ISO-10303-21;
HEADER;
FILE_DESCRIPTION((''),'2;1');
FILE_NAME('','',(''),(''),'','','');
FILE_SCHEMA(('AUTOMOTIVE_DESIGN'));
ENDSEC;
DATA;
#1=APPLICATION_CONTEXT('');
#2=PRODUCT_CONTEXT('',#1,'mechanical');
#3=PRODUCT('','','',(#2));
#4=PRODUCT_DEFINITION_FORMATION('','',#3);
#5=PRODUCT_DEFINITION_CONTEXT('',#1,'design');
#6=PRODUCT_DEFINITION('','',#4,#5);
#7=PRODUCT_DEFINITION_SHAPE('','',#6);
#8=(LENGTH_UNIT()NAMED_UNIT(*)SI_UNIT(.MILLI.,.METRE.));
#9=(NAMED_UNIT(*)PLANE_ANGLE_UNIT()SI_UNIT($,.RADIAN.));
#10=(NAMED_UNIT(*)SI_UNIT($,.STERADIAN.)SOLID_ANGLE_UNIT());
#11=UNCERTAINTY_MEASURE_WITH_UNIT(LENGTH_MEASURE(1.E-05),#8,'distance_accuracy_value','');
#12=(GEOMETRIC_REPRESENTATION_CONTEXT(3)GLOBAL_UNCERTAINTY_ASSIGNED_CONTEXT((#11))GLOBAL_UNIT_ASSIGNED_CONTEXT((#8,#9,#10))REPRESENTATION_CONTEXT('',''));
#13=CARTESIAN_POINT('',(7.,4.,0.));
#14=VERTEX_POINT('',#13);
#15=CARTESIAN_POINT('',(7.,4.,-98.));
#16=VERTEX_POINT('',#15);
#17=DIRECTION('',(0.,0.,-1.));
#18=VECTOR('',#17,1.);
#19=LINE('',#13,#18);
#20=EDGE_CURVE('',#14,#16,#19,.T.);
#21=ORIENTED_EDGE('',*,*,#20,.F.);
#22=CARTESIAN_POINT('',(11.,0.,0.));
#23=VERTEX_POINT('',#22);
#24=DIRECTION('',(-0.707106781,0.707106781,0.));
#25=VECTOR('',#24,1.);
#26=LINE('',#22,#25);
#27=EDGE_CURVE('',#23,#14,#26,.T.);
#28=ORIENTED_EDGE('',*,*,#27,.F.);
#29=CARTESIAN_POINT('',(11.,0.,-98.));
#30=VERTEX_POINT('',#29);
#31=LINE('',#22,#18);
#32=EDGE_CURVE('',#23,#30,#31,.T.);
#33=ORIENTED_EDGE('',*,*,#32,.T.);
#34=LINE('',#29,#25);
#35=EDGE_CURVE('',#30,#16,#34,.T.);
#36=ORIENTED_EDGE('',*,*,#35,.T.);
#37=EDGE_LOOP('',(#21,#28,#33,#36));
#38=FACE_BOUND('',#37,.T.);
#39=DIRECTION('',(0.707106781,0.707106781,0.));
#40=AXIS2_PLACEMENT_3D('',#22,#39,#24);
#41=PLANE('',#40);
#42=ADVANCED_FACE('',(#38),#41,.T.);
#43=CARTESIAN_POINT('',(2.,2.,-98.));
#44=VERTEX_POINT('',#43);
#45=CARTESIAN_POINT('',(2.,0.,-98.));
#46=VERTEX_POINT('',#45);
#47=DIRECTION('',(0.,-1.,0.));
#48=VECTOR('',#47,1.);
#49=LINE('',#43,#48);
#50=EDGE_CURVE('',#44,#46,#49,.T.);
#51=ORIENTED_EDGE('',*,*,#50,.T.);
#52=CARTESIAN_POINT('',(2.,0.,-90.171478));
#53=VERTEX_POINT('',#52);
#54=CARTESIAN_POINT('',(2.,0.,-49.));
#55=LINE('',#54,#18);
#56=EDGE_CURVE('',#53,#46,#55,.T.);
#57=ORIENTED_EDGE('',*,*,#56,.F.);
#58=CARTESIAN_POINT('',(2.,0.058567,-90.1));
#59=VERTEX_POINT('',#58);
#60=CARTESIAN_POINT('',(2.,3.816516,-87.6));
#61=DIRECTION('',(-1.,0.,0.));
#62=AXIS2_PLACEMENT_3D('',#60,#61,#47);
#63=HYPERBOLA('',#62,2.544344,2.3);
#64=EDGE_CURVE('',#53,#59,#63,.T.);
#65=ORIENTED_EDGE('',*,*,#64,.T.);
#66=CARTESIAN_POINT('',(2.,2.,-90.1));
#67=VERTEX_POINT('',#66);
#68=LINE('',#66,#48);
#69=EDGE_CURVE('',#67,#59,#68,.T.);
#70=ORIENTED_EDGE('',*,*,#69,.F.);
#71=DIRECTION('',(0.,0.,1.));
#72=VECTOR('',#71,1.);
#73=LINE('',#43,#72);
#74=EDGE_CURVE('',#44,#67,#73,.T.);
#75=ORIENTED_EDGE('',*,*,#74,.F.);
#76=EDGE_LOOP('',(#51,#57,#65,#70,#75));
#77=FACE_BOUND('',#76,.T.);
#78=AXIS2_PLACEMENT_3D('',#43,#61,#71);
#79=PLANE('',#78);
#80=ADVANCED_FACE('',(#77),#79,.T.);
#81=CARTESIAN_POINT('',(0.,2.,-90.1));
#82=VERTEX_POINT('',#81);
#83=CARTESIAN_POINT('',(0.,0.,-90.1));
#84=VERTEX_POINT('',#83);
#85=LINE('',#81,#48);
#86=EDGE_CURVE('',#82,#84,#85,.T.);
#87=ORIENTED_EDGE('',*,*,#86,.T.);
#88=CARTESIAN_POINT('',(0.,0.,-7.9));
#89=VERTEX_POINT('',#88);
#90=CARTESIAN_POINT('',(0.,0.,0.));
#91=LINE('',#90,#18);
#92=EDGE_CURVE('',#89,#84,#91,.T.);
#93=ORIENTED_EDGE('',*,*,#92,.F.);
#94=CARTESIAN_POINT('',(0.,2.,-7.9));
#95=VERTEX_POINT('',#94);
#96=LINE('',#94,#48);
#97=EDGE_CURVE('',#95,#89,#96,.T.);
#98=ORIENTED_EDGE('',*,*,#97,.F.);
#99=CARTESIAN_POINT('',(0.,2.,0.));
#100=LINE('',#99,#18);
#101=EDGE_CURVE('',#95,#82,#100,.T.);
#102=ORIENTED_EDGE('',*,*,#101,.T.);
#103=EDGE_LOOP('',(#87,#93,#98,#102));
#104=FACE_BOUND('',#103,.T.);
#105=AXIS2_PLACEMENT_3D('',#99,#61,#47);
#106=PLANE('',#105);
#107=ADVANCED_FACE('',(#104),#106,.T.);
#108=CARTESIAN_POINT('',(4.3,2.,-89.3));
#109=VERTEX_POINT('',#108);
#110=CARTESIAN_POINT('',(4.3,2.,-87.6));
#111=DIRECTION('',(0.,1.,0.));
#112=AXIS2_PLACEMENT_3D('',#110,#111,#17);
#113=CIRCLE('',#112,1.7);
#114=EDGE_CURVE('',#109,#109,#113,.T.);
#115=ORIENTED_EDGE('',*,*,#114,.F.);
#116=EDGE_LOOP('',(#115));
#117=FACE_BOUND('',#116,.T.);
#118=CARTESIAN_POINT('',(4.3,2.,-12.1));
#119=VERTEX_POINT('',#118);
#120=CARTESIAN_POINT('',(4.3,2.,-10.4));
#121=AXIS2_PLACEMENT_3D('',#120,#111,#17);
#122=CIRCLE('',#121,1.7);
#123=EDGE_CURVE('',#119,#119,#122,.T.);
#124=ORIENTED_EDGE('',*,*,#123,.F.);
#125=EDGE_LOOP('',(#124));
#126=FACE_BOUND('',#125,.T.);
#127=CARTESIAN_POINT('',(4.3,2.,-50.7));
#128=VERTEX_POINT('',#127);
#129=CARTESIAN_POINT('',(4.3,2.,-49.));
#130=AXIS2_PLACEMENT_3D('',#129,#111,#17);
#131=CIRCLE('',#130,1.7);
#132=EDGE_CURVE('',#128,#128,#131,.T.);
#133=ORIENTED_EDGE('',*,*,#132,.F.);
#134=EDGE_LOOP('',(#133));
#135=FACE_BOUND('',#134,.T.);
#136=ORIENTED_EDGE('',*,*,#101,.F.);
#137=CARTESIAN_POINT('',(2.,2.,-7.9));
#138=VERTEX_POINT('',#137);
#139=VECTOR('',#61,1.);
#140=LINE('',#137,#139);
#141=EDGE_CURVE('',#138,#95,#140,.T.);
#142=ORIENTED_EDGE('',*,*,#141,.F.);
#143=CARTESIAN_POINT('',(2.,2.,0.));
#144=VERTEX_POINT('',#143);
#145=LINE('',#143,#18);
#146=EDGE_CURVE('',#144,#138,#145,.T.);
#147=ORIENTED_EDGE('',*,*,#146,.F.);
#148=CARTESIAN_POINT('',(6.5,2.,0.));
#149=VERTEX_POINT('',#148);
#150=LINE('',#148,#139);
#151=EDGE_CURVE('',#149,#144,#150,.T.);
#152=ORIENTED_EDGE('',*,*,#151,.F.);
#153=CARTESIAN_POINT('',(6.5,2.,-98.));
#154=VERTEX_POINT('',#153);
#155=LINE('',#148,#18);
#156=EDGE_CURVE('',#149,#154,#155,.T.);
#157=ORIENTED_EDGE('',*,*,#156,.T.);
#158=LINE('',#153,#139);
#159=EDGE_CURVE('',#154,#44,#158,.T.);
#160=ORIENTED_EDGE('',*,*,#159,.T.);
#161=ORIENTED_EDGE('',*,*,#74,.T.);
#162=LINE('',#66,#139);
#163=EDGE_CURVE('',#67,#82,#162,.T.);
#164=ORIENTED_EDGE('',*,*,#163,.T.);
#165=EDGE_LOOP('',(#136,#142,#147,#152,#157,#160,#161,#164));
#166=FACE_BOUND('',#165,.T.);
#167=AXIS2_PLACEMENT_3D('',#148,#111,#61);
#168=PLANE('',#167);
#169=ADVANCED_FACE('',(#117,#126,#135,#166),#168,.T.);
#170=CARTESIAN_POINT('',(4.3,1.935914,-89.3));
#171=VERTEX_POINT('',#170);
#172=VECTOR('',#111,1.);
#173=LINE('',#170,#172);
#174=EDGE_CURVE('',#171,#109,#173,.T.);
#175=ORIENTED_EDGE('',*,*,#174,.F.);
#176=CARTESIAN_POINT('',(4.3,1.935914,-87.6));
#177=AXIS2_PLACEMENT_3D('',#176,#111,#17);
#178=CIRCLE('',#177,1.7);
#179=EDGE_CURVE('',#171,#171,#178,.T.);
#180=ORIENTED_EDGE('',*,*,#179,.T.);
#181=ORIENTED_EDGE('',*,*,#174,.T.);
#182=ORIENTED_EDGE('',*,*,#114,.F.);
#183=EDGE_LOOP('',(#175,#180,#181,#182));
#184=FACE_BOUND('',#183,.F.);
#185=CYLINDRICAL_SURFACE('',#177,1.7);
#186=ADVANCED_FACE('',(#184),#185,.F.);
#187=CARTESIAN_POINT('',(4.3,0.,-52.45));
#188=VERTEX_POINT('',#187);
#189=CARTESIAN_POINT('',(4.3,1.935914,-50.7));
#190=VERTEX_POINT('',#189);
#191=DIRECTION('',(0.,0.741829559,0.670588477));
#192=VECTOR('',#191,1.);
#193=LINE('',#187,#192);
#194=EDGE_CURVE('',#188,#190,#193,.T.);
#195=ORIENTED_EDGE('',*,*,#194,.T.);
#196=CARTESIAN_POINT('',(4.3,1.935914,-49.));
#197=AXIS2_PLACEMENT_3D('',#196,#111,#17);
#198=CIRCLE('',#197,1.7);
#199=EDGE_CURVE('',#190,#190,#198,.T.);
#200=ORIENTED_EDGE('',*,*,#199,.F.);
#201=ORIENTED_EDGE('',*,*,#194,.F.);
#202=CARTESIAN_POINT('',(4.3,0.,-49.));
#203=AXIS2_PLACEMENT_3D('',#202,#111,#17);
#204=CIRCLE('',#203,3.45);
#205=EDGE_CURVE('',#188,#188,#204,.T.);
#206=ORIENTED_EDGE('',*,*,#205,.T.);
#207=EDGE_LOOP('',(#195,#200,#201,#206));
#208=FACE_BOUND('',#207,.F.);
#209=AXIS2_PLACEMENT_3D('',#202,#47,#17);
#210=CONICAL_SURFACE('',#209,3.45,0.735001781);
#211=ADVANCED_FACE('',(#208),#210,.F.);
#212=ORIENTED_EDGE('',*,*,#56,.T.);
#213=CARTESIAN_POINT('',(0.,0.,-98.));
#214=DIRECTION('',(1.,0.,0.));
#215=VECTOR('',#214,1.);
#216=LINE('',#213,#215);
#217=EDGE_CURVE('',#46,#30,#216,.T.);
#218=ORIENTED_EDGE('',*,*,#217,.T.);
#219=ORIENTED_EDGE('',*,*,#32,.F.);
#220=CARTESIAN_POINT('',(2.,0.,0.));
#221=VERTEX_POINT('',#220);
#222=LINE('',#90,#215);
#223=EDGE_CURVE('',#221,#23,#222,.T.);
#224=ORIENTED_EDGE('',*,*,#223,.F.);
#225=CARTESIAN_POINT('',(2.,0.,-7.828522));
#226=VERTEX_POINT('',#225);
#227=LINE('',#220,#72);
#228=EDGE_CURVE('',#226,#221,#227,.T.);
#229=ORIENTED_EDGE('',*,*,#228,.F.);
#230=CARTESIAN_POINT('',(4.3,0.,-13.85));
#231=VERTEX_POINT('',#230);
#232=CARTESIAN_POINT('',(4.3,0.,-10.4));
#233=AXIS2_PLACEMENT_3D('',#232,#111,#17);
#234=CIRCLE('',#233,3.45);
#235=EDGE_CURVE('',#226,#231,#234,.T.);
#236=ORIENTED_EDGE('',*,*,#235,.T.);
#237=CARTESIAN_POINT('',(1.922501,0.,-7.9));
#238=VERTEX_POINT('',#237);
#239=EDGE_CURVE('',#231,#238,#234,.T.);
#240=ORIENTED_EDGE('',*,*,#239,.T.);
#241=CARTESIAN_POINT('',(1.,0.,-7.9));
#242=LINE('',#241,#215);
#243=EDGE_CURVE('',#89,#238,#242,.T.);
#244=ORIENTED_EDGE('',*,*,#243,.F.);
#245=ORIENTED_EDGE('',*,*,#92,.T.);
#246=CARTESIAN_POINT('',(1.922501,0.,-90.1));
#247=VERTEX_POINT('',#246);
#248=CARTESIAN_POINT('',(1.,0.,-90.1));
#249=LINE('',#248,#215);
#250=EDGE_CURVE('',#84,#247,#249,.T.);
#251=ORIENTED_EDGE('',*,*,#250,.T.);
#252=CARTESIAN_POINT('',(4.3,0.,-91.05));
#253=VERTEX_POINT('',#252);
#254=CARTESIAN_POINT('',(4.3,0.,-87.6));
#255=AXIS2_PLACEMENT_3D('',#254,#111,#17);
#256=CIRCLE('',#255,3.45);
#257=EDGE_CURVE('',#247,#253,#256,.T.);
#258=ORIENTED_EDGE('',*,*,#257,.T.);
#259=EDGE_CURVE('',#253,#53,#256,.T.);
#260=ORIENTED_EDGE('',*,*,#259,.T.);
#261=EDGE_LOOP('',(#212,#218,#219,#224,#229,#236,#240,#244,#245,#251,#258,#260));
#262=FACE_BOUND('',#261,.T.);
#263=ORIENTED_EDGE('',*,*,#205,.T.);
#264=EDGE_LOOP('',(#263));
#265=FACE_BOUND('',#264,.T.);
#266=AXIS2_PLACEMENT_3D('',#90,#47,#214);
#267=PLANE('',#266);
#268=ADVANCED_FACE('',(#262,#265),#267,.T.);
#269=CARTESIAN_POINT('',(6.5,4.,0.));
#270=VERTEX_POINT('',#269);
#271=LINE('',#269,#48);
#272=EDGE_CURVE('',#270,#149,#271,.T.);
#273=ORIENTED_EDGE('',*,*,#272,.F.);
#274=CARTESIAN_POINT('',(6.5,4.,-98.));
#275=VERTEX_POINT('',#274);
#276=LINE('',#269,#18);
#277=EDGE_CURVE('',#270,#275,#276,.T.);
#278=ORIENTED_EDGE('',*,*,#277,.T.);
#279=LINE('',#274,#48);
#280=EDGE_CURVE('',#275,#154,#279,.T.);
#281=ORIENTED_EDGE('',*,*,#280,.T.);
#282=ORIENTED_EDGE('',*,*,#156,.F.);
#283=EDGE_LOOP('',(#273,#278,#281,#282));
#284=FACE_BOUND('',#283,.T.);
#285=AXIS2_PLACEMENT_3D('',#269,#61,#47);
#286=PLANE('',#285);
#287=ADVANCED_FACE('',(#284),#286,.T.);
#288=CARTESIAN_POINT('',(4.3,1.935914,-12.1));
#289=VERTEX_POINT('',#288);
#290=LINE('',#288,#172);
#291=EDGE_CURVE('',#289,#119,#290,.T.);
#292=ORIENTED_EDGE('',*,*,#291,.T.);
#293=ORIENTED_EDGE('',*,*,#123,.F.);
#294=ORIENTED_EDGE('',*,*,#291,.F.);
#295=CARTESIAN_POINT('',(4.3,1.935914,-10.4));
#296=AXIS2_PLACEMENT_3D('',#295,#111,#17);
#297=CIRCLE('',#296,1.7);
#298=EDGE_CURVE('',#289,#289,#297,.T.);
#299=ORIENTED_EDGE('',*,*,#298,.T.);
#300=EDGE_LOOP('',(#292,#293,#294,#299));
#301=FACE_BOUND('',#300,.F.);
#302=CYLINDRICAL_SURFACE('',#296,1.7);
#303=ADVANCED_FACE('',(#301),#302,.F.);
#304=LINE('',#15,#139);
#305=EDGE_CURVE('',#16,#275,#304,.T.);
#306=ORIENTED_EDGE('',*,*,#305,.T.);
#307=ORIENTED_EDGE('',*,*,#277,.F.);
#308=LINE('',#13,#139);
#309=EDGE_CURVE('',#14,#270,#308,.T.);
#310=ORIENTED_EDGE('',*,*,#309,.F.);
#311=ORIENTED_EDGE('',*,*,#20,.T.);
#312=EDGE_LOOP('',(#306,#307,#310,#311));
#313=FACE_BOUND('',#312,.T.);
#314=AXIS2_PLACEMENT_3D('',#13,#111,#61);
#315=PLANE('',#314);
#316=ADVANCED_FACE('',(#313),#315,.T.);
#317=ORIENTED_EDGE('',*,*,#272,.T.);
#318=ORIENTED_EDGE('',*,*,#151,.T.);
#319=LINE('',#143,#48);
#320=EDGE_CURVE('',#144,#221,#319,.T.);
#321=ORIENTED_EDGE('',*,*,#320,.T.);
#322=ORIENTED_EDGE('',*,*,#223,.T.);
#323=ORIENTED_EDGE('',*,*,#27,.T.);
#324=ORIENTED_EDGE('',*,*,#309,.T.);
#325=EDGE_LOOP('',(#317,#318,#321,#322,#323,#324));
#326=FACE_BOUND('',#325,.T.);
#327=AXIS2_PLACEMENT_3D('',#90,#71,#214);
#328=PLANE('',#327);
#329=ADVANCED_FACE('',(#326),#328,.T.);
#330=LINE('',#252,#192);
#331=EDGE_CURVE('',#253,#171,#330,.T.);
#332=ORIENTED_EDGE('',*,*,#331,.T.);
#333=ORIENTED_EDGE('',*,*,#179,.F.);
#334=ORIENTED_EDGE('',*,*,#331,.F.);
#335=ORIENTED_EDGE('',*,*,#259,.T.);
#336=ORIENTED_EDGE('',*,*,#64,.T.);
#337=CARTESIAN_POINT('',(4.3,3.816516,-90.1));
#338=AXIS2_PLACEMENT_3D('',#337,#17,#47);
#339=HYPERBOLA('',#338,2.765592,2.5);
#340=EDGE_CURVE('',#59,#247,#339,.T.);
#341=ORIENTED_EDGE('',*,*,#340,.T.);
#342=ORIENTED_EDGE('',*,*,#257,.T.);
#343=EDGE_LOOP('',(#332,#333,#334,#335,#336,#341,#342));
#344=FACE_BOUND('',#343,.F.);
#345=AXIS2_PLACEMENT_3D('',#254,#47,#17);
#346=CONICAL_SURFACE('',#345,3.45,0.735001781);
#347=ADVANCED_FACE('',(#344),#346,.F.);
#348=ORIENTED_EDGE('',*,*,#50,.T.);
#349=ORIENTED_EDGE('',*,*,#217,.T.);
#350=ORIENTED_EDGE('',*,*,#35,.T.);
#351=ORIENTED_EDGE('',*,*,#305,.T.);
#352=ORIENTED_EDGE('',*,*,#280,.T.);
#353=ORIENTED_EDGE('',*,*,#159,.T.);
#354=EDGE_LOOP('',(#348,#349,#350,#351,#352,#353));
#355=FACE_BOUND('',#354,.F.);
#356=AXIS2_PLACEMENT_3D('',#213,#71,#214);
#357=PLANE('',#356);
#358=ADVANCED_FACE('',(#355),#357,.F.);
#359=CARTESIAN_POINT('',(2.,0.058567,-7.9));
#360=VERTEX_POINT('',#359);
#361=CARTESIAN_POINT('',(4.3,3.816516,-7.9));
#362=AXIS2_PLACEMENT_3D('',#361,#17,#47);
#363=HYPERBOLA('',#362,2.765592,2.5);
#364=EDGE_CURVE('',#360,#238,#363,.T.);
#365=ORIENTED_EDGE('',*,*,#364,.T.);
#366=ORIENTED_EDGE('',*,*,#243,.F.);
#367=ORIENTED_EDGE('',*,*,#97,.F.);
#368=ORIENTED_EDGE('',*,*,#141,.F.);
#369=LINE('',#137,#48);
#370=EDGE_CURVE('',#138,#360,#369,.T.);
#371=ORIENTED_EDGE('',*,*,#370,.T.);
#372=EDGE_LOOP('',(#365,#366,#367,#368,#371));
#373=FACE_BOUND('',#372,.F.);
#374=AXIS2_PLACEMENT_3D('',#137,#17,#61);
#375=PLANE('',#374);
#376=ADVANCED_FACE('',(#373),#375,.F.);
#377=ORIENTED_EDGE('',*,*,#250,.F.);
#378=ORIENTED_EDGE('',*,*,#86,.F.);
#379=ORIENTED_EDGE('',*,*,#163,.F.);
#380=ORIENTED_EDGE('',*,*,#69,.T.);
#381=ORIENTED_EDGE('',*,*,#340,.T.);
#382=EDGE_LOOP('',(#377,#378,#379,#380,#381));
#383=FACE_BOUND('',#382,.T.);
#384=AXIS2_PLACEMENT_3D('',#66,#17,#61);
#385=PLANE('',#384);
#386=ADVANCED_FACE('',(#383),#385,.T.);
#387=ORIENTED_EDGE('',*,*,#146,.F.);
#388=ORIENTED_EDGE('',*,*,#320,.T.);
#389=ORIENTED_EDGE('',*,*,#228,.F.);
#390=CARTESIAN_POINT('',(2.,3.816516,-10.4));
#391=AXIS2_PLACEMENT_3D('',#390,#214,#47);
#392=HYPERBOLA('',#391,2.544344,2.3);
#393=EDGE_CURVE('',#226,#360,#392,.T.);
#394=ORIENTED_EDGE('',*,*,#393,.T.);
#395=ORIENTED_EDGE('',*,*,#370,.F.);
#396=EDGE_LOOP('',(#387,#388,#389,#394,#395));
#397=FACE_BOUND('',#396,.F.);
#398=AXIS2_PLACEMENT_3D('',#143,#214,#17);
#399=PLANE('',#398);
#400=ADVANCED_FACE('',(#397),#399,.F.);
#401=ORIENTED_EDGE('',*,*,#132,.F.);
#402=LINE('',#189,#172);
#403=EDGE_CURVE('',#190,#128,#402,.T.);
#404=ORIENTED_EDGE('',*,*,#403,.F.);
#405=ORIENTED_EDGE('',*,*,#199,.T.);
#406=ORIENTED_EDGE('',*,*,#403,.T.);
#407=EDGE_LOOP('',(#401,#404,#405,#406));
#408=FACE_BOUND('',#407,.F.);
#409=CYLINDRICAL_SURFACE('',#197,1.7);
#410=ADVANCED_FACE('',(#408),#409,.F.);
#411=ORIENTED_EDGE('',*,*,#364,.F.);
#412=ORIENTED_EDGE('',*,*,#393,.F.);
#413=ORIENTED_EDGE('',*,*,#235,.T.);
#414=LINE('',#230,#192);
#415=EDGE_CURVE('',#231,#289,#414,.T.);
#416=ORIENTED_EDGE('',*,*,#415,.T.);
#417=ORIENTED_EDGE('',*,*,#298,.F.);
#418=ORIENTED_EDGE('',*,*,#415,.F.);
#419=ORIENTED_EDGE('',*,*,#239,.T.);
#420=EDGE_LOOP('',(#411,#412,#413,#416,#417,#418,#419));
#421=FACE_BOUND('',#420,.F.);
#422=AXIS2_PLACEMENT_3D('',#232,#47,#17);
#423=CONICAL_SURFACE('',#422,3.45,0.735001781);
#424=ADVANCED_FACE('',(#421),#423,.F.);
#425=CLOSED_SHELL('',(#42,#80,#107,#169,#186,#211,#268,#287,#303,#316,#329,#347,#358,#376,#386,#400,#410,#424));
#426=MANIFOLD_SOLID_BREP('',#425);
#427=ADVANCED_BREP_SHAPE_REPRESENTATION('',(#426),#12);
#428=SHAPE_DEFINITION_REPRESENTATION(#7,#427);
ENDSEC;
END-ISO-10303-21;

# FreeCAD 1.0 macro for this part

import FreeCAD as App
import Part
import Sketcher

V = App.Vector
Q = App.Units.Quantity


def add_polygon(sketch, points):
    """Adds a closed chain of lines whose ends are joined by coincident constraints."""
    first, n = sketch.GeometryCount, len(points)
    for a, b in zip(points, points[1:] + points[:1]):
        sketch.addGeometry(Part.LineSegment(App.Vector(*a, 0), App.Vector(*b, 0)), False)
    for i in range(n):
        sketch.addConstraint(Sketcher.Constraint("Coincident", first + i, 2, first + (i + 1) % n, 1))

doc = App.newDocument("Part")
body = doc.addObject("PartDesign::Body", "Body")

# Sketch on XY plane
sketch1 = doc.addObject("Sketcher::SketchObject", "Sketch")
body.addObject(sketch1)
sketch1.AttachmentSupport = (doc.XY_Plane, [""])
sketch1.MapMode = "FlatFace"
add_polygon(sketch1, [(0, 2), (0, 0), (11, 0), (7, 4), (6.5, 4), (6.5, 2)])  # lines 0-5
sketch1.addConstraint([
    Sketcher.Constraint("Vertical", 0),
    Sketcher.Constraint("Horizontal", 1),
    Sketcher.Constraint("Horizontal", 3),
    Sketcher.Constraint("Vertical", 4),
    Sketcher.Constraint("Horizontal", 5),
    Sketcher.Constraint("Coincident", 0, 2, -1, 1),
    Sketcher.Constraint("Equal", 0, 4),
    Sketcher.Constraint("DistanceX", 1, 1, 1, 2, 11.0),
    Sketcher.Constraint("DistanceY", 0, 2, 0, 1, 2.0),
    Sketcher.Constraint("DistanceX", 3, 2, 1, 2, 4.5),
    Sketcher.Constraint("Angle", 2, Q("135 deg")),
])
pad1 = doc.addObject("PartDesign::Pad", "Pad")
body.addObject(pad1)
pad1.Profile = sketch1
pad1.Length = 98
pad1.Reversed = True

# Sketch on XZ plane
sketch2 = doc.addObject("Sketcher::SketchObject", "Sketch001")
body.addObject(sketch2)
sketch2.AttachmentSupport = (doc.XZ_Plane, [""])
sketch2.MapMode = "FlatFace"
sketch2.addGeometry([
    Part.Circle(V(4.3, -10.4, 0), V(0, 0, 1), 1.7),
    Part.Circle(V(4.3, -49, 0), V(0, 0, 1), 1.7),
    Part.Circle(V(4.3, -87.6, 0), V(0, 0, 1), 1.7),
], False)
sketch2.addConstraint([
    Sketcher.Constraint("Equal", 0, 1),
    Sketcher.Constraint("Equal", 1, 2),
    Sketcher.Constraint("Vertical", 0, 3, 1, 3),
    Sketcher.Constraint("Vertical", 1, 3, 2, 3),
    Sketcher.Constraint("Diameter", 0, 3.4),
    Sketcher.Constraint("DistanceY", 1, 3, -1, 1, 49.0),
    Sketcher.Constraint("DistanceX", -1, 1, 0, 3, 4.3),
    Sketcher.Constraint("DistanceY", 0, 3, -1, 1, 10.4),
    Sketcher.Constraint("DistanceY", 2, 3, -1, 1, 87.6),
])
doc.recompute()
hole = doc.addObject("PartDesign::Hole", "Hole")
body.addObject(hole)
hole.Profile = sketch2
hole.ThreadType = "None"
hole.Diameter = 3.4
hole.DepthType = "ThroughAll"
hole.HoleCutType = "Countersink"
hole.HoleCutDiameter = 6.9
hole.HoleCutCountersinkAngle = 84.225

# Sketch on XZ plane
sketch3 = doc.addObject("Sketcher::SketchObject", "Sketch002")
body.addObject(sketch3)
sketch3.AttachmentSupport = (doc.XZ_Plane, [""])
sketch3.MapMode = "FlatFace"
sketch3.AttachmentOffset = App.Placement(V(0, 0, -2), App.Rotation())
add_polygon(sketch3, [(0, -7.9), (0, 0), (2, 0), (2, -7.9)])  # lines 0-3
add_polygon(sketch3, [(2, -98), (0, -98), (0, -90.1), (2, -90.1)])  # lines 4-7
sketch3.addConstraint([
    Sketcher.Constraint("Vertical", 0),
    Sketcher.Constraint("Horizontal", 1),
    Sketcher.Constraint("Vertical", 2),
    Sketcher.Constraint("Horizontal", 3),
    Sketcher.Constraint("Horizontal", 4),
    Sketcher.Constraint("Vertical", 5),
    Sketcher.Constraint("Horizontal", 6),
    Sketcher.Constraint("Vertical", 7),
    Sketcher.Constraint("Coincident", 0, 2, -1, 1),
    Sketcher.Constraint("PointOnObject", 4, 2, -2),
    Sketcher.Constraint("Vertical", 2, 2, 6, 2),
    Sketcher.Constraint("Equal", 2, 5),
    Sketcher.Constraint("DistanceY", 0, 1, 0, 2, 7.9),
    Sketcher.Constraint("DistanceX", 1, 1, 1, 2, 2.0),
    Sketcher.Constraint("DistanceY", 4, 2, -1, 1, 98.0),
])
pocket1 = doc.addObject("PartDesign::Pocket", "Pocket")
body.addObject(pocket1)
pocket1.Profile = sketch3
pocket1.Type = "ThroughAll"
pocket1.Reversed = True

doc.recompute()
